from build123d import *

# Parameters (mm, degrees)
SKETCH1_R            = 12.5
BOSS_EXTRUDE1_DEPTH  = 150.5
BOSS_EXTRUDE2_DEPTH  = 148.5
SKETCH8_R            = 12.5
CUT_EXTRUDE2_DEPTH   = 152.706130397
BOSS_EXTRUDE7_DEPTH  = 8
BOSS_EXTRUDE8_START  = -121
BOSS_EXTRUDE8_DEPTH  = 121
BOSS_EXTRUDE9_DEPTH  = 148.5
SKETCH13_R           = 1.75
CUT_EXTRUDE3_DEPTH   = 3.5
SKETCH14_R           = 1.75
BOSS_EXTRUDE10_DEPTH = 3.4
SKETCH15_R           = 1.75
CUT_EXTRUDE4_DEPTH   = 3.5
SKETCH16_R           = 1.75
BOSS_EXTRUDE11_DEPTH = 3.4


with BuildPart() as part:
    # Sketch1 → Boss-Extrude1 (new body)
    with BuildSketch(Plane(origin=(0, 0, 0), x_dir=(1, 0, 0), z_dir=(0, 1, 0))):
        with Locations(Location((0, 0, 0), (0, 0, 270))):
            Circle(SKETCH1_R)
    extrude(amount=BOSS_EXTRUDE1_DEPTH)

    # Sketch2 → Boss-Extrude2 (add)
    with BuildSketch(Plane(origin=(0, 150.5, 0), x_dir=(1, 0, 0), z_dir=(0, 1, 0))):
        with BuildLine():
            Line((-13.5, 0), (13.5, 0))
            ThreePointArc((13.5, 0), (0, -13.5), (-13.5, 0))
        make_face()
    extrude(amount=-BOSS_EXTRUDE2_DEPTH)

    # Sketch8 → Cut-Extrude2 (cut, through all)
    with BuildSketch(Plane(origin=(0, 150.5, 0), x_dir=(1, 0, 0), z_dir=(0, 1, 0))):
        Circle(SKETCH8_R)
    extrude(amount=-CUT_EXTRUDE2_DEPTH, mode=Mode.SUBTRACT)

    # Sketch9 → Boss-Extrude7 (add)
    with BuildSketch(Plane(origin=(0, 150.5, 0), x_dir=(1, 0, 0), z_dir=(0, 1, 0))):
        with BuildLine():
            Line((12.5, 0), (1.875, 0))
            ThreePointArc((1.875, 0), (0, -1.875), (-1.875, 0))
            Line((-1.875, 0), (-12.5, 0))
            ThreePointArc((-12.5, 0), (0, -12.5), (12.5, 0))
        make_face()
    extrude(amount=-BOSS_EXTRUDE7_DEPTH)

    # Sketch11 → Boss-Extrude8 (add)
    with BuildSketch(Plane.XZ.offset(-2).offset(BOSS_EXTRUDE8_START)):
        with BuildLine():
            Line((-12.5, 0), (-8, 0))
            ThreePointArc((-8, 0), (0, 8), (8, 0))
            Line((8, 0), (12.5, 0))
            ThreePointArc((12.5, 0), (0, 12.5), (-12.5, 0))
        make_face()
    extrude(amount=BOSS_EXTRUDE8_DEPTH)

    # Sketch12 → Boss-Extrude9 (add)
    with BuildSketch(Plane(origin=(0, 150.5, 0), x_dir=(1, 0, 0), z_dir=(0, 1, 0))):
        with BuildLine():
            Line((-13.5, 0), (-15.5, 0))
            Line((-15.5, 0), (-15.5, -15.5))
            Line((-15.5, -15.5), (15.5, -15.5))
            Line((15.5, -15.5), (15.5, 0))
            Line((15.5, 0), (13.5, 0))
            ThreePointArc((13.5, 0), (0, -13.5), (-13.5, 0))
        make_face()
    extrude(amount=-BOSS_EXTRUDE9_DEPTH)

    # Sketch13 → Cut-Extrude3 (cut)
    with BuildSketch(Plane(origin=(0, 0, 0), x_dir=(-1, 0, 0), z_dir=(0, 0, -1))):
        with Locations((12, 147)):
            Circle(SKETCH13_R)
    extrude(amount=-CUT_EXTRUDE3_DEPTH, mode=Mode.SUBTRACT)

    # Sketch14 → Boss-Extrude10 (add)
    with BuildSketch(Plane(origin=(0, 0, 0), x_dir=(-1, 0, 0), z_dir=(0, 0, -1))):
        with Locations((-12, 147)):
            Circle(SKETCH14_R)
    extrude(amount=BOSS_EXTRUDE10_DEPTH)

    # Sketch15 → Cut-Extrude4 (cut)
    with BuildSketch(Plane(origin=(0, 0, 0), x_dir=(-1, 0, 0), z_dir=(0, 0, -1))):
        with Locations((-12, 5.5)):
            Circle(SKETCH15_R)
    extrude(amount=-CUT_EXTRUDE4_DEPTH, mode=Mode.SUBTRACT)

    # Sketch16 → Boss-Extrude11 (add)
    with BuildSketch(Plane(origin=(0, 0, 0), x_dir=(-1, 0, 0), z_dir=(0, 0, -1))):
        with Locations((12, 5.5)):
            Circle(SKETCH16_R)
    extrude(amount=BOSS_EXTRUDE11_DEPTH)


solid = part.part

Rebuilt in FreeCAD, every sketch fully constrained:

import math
import FreeCAD as App
import Part
import Sketcher
from FreeCAD import Vector
Q = App.Units.Quantity

doc = App.newDocument("Part")
params = doc.addObject("Spreadsheet::Sheet", "Params")
for row, (alias, value) in enumerate([
    ("sketch1_diameter", "25 mm"),
    ("pad1_length", "150.5 mm"),
    ("sketch2_radius", "13.5 mm"),
    ("pad2_length", "148.5 mm"),
    ("sketch3_diameter", "25 mm"),
    ("sketch4_radius", "12.5 mm"),
    ("pad3_length", "8 mm"),
    ("sketch5_radius", "8 mm"),
    ("sketch5_radius2", "12.5 mm"),
    ("pad4_length", "121 mm"),
    ("sketch6_radius", "13.5 mm"),
    ("sketch6_width", "2 mm"),
    ("sketch6_height", "15.5 mm"),
    ("pad5_length", "148.5 mm"),
    ("sketch7_diameter", "3.5 mm"),
    ("pocket2_length", "3.5 mm"),
    ("sketch8_diameter", "3.5 mm"),
    ("pad6_length", "3.4 mm"),
    ("sketch9_diameter", "3.5 mm"),
    ("pocket3_length", "3.5 mm"),
    ("sketch10_diameter", "3.5 mm"),
    ("pad7_length", "3.4 mm"),
], start=1):
    params.set(f"A{row}", alias)
    params.set(f"B{row}", "=" + value)
    params.setAlias(f"B{row}", alias)

body = doc.addObject("PartDesign::Body", "Body")

# Sketch on XZ plane
sketch1 = body.newObject("Sketcher::SketchObject", "Sketch")
sketch1.AttachmentSupport = (doc.getObject("XZ_Plane"), [""])
sketch1.MapMode = "FlatFace"
sketch1.addGeometry(Part.Circle(Vector(0, 0, 0), Vector(0, 0, 1), 12), False)
sketch1.addConstraint([
    Sketcher.Constraint("Coincident", 0, 3, -1, 1),
    Sketcher.Constraint("Diameter", 0, Q("25 mm")),
])
sketch1.setExpression("Constraints[1]", "Params.sketch1_diameter")
pad1 = body.newObject("PartDesign::Pad", "Pad")
pad1.Profile = sketch1
pad1.setExpression("Length", "Params.pad1_length")
pad1.Reversed = True

# Sketch on XZ plane
sketch2 = body.newObject("Sketcher::SketchObject", "Sketch001")
sketch2.AttachmentSupport = (doc.getObject("XZ_Plane"), [""])
sketch2.MapMode = "FlatFace"
sketch2.AttachmentOffset = App.Placement(Vector(0, 0, -150.5), App.Rotation())
sketch2.addGeometry([
    Part.LineSegment(Vector(14, 0, 0), Vector(-14, 0, 0)),
    Part.ArcOfCircle(Part.Circle(Vector(0, 0, 0), Vector(0, 0, 1), 14), math.radians(0), math.radians(180)),
], False)
sketch2.addConstraint([
    Sketcher.Constraint("Coincident", 0, 1, 1, 1),
    Sketcher.Constraint("Coincident", 1, 2, 0, 2),
    Sketcher.Constraint("Horizontal", 0),
    Sketcher.Constraint("Coincident", 1, 3, -1, 1),
    Sketcher.Constraint("PointOnObject", 0, 1, -1),
    Sketcher.Constraint("Radius", 1, Q("13.5 mm")),
])
sketch2.setExpression("Constraints[5]", "Params.sketch2_radius")
pad2 = body.newObject("PartDesign::Pad", "Pad001")
pad2.Profile = sketch2
pad2.setExpression("Length", "Params.pad2_length")

# Sketch on XZ plane
sketch3 = body.newObject("Sketcher::SketchObject", "Sketch002")
sketch3.AttachmentSupport = (doc.getObject("XZ_Plane"), [""])
sketch3.MapMode = "FlatFace"
sketch3.AttachmentOffset = App.Placement(Vector(0, 0, -150.5), App.Rotation())
sketch3.addGeometry(Part.Circle(Vector(0, 0, 0), Vector(0, 0, 1), 12), False)
sketch3.addConstraint([
    Sketcher.Constraint("Coincident", 0, 3, -1, 1),
    Sketcher.Constraint("Diameter", 0, Q("25 mm")),
])
sketch3.setExpression("Constraints[1]", "Params.sketch3_diameter")
pocket1 = body.newObject("PartDesign::Pocket", "Pocket")
pocket1.Profile = sketch3
pocket1.Type = "ThroughAll"
pocket1.Reversed = True

# Sketch on XZ plane
sketch4 = body.newObject("Sketcher::SketchObject", "Sketch003")
sketch4.AttachmentSupport = (doc.getObject("XZ_Plane"), [""])
sketch4.MapMode = "FlatFace"
sketch4.AttachmentOffset = App.Placement(Vector(0, 0, -150.5), App.Rotation())
sketch4.addGeometry([
    Part.LineSegment(Vector(12.5, 0, 0), Vector(1.9, 0, 0)),
    Part.ArcOfCircle(Part.Circle(Vector(0, 0, 0), Vector(0, 0, 1), 1.9), math.radians(0), math.radians(180)),
    Part.LineSegment(Vector(-1.9, 0, 0), Vector(-12.5, 0, 0)),
    Part.ArcOfCircle(Part.Circle(Vector(0, 0, 0), Vector(0, 0, 1), 12.5), math.radians(0), math.radians(180)),
], False)
sketch4.addConstraint([
    Sketcher.Constraint("Coincident", 0, 2, 1, 1),
    Sketcher.Constraint("Coincident", 1, 2, 2, 1),
    Sketcher.Constraint("Coincident", 2, 2, 3, 2),
    Sketcher.Constraint("Coincident", 3, 1, 0, 1),
    Sketcher.Constraint("Horizontal", 0),
    Sketcher.Constraint("Horizontal", 2),
    Sketcher.Constraint("Coincident", 1, 3, -1, 1),
    Sketcher.Constraint("Coincident", 3, 3, -1, 1),
    Sketcher.Constraint("PointOnObject", 0, 2, -1),
    Sketcher.Constraint("PointOnObject", 1, 2, -1),
    Sketcher.Constraint("Radius", 3, Q("12.5 mm")),
    Sketcher.Constraint("Radius", 1, Q("1.875 mm")),
])
sketch4.setExpression("Constraints[10]", "Params.sketch4_radius")
pad3 = body.newObject("PartDesign::Pad", "Pad002")
pad3.Profile = sketch4
pad3.setExpression("Length", "Params.pad3_length")

# Sketch on XZ plane
sketch5 = body.newObject("Sketcher::SketchObject", "Sketch004")
sketch5.AttachmentSupport = (doc.getObject("XZ_Plane"), [""])
sketch5.MapMode = "FlatFace"
sketch5.AttachmentOffset = App.Placement(Vector(0, 0, -123), App.Rotation())
sketch5.addGeometry([
    Part.LineSegment(Vector(-12.5, 0, 0), Vector(-8, 0, 0)),
    Part.ArcOfCircle(Part.Circle(Vector(0, 0, 0), Vector(0, 0, 1), 8), math.radians(0), math.radians(180)),
    Part.LineSegment(Vector(8, 0, 0), Vector(12.5, 0, 0)),
    Part.ArcOfCircle(Part.Circle(Vector(0, 0, 0), Vector(0, 0, 1), 12.5), math.radians(0), math.radians(180)),
], False)
sketch5.addConstraint([
    Sketcher.Constraint("Coincident", 0, 2, 1, 2),
    Sketcher.Constraint("Coincident", 1, 1, 2, 1),
    Sketcher.Constraint("Coincident", 2, 2, 3, 1),
    Sketcher.Constraint("Coincident", 3, 2, 0, 1),
    Sketcher.Constraint("Horizontal", 0),
    Sketcher.Constraint("Horizontal", 2),
    Sketcher.Constraint("Coincident", 1, 3, -1, 1),
    Sketcher.Constraint("Coincident", 3, 3, -1, 1),
    Sketcher.Constraint("PointOnObject", 0, 2, -1),
    Sketcher.Constraint("PointOnObject", 1, 1, -1),
    Sketcher.Constraint("Radius", 1, Q("8 mm")),
    Sketcher.Constraint("Radius", 3, Q("12.5 mm")),
])
sketch5.setExpression("Constraints[10]", "Params.sketch5_radius")
sketch5.setExpression("Constraints[11]", "Params.sketch5_radius2")
pad4 = body.newObject("PartDesign::Pad", "Pad003")
pad4.Profile = sketch5
pad4.setExpression("Length", "Params.pad4_length")

# Sketch on XZ plane
sketch6 = body.newObject("Sketcher::SketchObject", "Sketch005")
sketch6.AttachmentSupport = (doc.getObject("XZ_Plane"), [""])
sketch6.MapMode = "FlatFace"
sketch6.AttachmentOffset = App.Placement(Vector(0, 0, -150.5), App.Rotation())
sketch6.addGeometry([
    Part.LineSegment(Vector(-13.5, 0, 0), Vector(-15.5, 0, 0)),  # 0
    Part.LineSegment(Vector(-15.5, 0, 0), Vector(-15.5, 15.5, 0)),  # 1
    Part.LineSegment(Vector(-15.5, 15.5, 0), Vector(15.5, 15.5, 0)),  # 2
    Part.LineSegment(Vector(15.5, 15.5, 0), Vector(15.5, 0, 0)),  # 3
    Part.LineSegment(Vector(15.5, 0, 0), Vector(13.5, 0, 0)),  # 4
    Part.ArcOfCircle(Part.Circle(Vector(0, 0, 0), Vector(0, 0, 1), 13.5), math.radians(0), math.radians(180)),  # 5
], False)
sketch6.addConstraint([
    Sketcher.Constraint("Coincident", 0, 2, 1, 1),
    Sketcher.Constraint("Coincident", 1, 2, 2, 1),
    Sketcher.Constraint("Coincident", 2, 2, 3, 1),
    Sketcher.Constraint("Coincident", 3, 2, 4, 1),
    Sketcher.Constraint("Coincident", 4, 2, 5, 1),
    Sketcher.Constraint("Coincident", 5, 2, 0, 1),
    Sketcher.Constraint("Horizontal", 0),
    Sketcher.Constraint("Vertical", 1),
    Sketcher.Constraint("Horizontal", 2),
    Sketcher.Constraint("Vertical", 3),
    Sketcher.Constraint("Horizontal", 4),
    Sketcher.Constraint("Coincident", 5, 3, -1, 1),
    Sketcher.Constraint("Symmetric", 0, 2, 3, 2, -1, 1),
    Sketcher.Constraint("PointOnObject", 0, 2, -1),
    Sketcher.Constraint("Radius", 5, Q("13.5 mm")),
    Sketcher.Constraint("DistanceX", 0, 2, 0, 1, Q("2 mm")),
    Sketcher.Constraint("DistanceY", 1, 1, 1, 2, Q("15.5 mm")),
])
sketch6.setExpression("Constraints[14]", "Params.sketch6_radius")
sketch6.setExpression("Constraints[15]", "Params.sketch6_width")
sketch6.setExpression("Constraints[16]", "Params.sketch6_height")
pad5 = body.newObject("PartDesign::Pad", "Pad004")
pad5.Profile = sketch6
pad5.setExpression("Length", "Params.pad5_length")

# Sketch on XY plane
sketch7 = body.newObject("Sketcher::SketchObject", "Sketch006")
sketch7.AttachmentSupport = (doc.getObject("XY_Plane"), [""])
sketch7.MapMode = "FlatFace"
sketch7.addGeometry(Part.Circle(Vector(-12, 147, 0), Vector(0, 0, 1), 1.8), False)
sketch7.addConstraint([
    Sketcher.Constraint("Diameter", 0, Q("3.5 mm")),
    Sketcher.Constraint("DistanceX", 0, 3, -1, 1, Q("12 mm")),
    Sketcher.Constraint("DistanceY", -1, 1, 0, 3, Q("147 mm")),
])
sketch7.setExpression("Constraints[0]", "Params.sketch7_diameter")
pocket2 = body.newObject("PartDesign::Pocket", "Pocket001")
pocket2.Profile = sketch7
pocket2.setExpression("Length", "Params.pocket2_length")
pocket2.Reversed = True

# Sketch on XY plane
sketch8 = body.newObject("Sketcher::SketchObject", "Sketch007")
sketch8.AttachmentSupport = (doc.getObject("XY_Plane"), [""])
sketch8.MapMode = "FlatFace"
sketch8.addGeometry(Part.Circle(Vector(12, 147, 0), Vector(0, 0, 1), 1.8), False)
sketch8.addConstraint([
    Sketcher.Constraint("Diameter", 0, Q("3.5 mm")),
    Sketcher.Constraint("DistanceX", -1, 1, 0, 3, Q("12 mm")),
    Sketcher.Constraint("DistanceY", -1, 1, 0, 3, Q("147 mm")),
])
sketch8.setExpression("Constraints[0]", "Params.sketch8_diameter")
pad6 = body.newObject("PartDesign::Pad", "Pad005")
pad6.Profile = sketch8
pad6.setExpression("Length", "Params.pad6_length")
pad6.Reversed = True

# Sketch on XY plane
sketch9 = body.newObject("Sketcher::SketchObject", "Sketch008")
sketch9.AttachmentSupport = (doc.getObject("XY_Plane"), [""])
sketch9.MapMode = "FlatFace"
sketch9.addGeometry(Part.Circle(Vector(12, 5.5, 0), Vector(0, 0, 1), 1.8), False)
sketch9.addConstraint([
    Sketcher.Constraint("Diameter", 0, Q("3.5 mm")),
    Sketcher.Constraint("DistanceX", -1, 1, 0, 3, Q("12 mm")),
    Sketcher.Constraint("DistanceY", -1, 1, 0, 3, Q("5.5 mm")),
])
sketch9.setExpression("Constraints[0]", "Params.sketch9_diameter")
pocket3 = body.newObject("PartDesign::Pocket", "Pocket002")
pocket3.Profile = sketch9
pocket3.setExpression("Length", "Params.pocket3_length")
pocket3.Reversed = True

# Sketch on XY plane
sketch10 = body.newObject("Sketcher::SketchObject", "Sketch009")
sketch10.AttachmentSupport = (doc.getObject("XY_Plane"), [""])
sketch10.MapMode = "FlatFace"
sketch10.addGeometry(Part.Circle(Vector(-12, 5.5, 0), Vector(0, 0, 1), 1.8), False)
sketch10.addConstraint([
    Sketcher.Constraint("Diameter", 0, Q("3.5 mm")),
    Sketcher.Constraint("DistanceX", 0, 3, -1, 1, Q("12 mm")),
    Sketcher.Constraint("DistanceY", -1, 1, 0, 3, Q("5.5 mm")),
])
sketch10.setExpression("Constraints[0]", "Params.sketch10_diameter")
pad7 = body.newObject("PartDesign::Pad", "Pad006")
pad7.Profile = sketch10
pad7.setExpression("Length", "Params.pad7_length")
pad7.Reversed = True

doc.recompute()
